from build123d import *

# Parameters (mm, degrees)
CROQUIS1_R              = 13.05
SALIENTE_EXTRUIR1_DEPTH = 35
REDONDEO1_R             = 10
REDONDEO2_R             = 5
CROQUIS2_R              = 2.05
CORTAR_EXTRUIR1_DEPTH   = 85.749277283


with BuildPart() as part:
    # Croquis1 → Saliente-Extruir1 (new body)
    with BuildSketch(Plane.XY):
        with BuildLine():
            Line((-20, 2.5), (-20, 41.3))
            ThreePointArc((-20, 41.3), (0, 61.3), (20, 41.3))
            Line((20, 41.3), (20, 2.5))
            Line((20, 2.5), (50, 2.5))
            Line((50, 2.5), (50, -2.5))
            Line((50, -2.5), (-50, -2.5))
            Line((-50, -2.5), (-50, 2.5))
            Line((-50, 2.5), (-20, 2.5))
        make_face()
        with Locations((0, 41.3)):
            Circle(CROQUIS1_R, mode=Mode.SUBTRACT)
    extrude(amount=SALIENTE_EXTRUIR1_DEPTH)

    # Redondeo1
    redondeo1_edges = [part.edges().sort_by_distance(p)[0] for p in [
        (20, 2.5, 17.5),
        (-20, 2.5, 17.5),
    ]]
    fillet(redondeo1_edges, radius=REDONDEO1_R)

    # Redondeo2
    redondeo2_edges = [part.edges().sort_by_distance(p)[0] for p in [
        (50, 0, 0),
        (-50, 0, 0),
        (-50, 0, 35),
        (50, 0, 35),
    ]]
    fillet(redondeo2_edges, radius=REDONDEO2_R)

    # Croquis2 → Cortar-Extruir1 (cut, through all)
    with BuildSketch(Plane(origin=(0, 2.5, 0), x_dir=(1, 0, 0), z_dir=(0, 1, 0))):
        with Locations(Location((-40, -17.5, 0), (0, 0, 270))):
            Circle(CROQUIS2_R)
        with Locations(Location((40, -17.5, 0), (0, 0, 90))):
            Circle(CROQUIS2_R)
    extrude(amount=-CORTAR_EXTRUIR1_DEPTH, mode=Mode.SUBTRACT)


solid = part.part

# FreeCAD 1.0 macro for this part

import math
import FreeCAD as App
import Part
import Sketcher
Q = App.Units.Quantity


def edges_at(feature, points):
    """Names of the edges that pass closest to the given points."""
    edges = feature.Shape.Edges
    near = lambda p: min(range(len(edges)), key=lambda i: edges[i].distToShape(Part.Vertex(*p))[0])
    return sorted({f"Edge{near(p) + 1}" for p in points})

doc = App.newDocument("Part")
body = doc.addObject("PartDesign::Body", "Body")

# Sketch on XY plane
sketch1 = doc.addObject("Sketcher::SketchObject", "Sketch")
body.addObject(sketch1)
sketch1.AttachmentSupport = (doc.XY_Plane, [""])
sketch1.MapMode = "FlatFace"
sketch1.addGeometry([
    Part.LineSegment(App.Vector(-20, 41, 0), App.Vector(-20, 2, 0)),  # 0
    Part.LineSegment(App.Vector(-20, 2, 0), App.Vector(-50, 2, 0)),  # 1
    Part.LineSegment(App.Vector(-50, 2, 0), App.Vector(-50, -2, 0)),  # 2
    Part.LineSegment(App.Vector(-50, -2, 0), App.Vector(50, -2, 0)),  # 3
    Part.LineSegment(App.Vector(50, -2, 0), App.Vector(50, 2, 0)),  # 4
    Part.LineSegment(App.Vector(50, 2, 0), App.Vector(20, 2, 0)),  # 5
    Part.LineSegment(App.Vector(20, 2, 0), App.Vector(20, 41, 0)),  # 6
    Part.ArcOfCircle(Part.Circle(App.Vector(0, 41, 0), App.Vector(0, 0, 1), 20), math.radians(0), math.radians(180)),  # 7
    Part.Circle(App.Vector(0, 41, 0), App.Vector(0, 0, 1), 13),  # 8
], False)
sketch1.addConstraint([
    Sketcher.Constraint("Coincident", 0, 2, 1, 1),
    Sketcher.Constraint("Coincident", 1, 2, 2, 1),
    Sketcher.Constraint("Coincident", 2, 2, 3, 1),
    Sketcher.Constraint("Coincident", 3, 2, 4, 1),
    Sketcher.Constraint("Coincident", 4, 2, 5, 1),
    Sketcher.Constraint("Coincident", 5, 2, 6, 1),
    Sketcher.Constraint("Tangent", 6, 2, 7, 1),
    Sketcher.Constraint("Tangent", 7, 2, 0, 1),
    Sketcher.Constraint("Vertical", 0),
    Sketcher.Constraint("Horizontal", 1),
    Sketcher.Constraint("Vertical", 2),
    Sketcher.Constraint("Horizontal", 3),
    Sketcher.Constraint("Vertical", 4),
    Sketcher.Constraint("Horizontal", 5),
    Sketcher.Constraint("Vertical", 6),
    Sketcher.Constraint("Coincident", 8, 3, 7, 3),
    Sketcher.Constraint("Symmetric", 1, 2, 3, 2, -1, 1),
    Sketcher.Constraint("Symmetric", 0, 2, 5, 2, -2),
    Sketcher.Constraint("Radius", 7, Q("20 mm")),
    Sketcher.Constraint("Diameter", 8, Q("26.1 mm")),
    Sketcher.Constraint("DistanceX", 1, 2, 1, 1, Q("30 mm")),
    Sketcher.Constraint("DistanceY", 2, 2, 2, 1, Q("5 mm")),
    Sketcher.Constraint("DistanceY", 0, 2, 0, 1, Q("38.8 mm")),
])
pad1 = doc.addObject("PartDesign::Pad", "Pad")
body.addObject(pad1)
pad1.Profile = sketch1
pad1.Length = 35
doc.recompute()

fillet = doc.addObject("PartDesign::Fillet", "Fillet")
body.addObject(fillet)
fillet.Base = (pad1, edges_at(pad1, [(20, 2.5, 17.5), (-20, 2.5, 17.5)]))
fillet.Radius = 10
doc.recompute()

fillet2 = doc.addObject("PartDesign::Fillet", "Fillet001")
body.addObject(fillet2)
fillet2.Base = (fillet, edges_at(fillet, [
    (50, 0, 0),
    (-50, 0, 0),
    (-50, 0, 35),
    (50, 0, 35),
]))
fillet2.Radius = 5

# Sketch on XZ plane
sketch2 = doc.addObject("Sketcher::SketchObject", "Sketch001")
body.addObject(sketch2)
sketch2.AttachmentSupport = (doc.XZ_Plane, [""])
sketch2.MapMode = "FlatFace"
sketch2.AttachmentOffset = App.Placement(App.Vector(0, 0, -2.5), App.Rotation())
sketch2.addGeometry([
    Part.Circle(App.Vector(-40, 17.5, 0), App.Vector(0, 0, 1), 2),
    Part.Circle(App.Vector(40, 17.5, 0), App.Vector(0, 0, 1), 2),
], False)
sketch2.addConstraint([
    Sketcher.Constraint("Equal", 0, 1),
    Sketcher.Constraint("Symmetric", 0, 3, 1, 3, -2),
    Sketcher.Constraint("Diameter", 0, Q("4.1 mm")),
    Sketcher.Constraint("DistanceX", 0, 3, -1, 1, Q("40 mm")),
    Sketcher.Constraint("DistanceY", -1, 1, 0, 3, Q("17.5 mm")),
])
pocket1 = doc.addObject("PartDesign::Pocket", "Pocket")
body.addObject(pocket1)
pocket1.Profile = sketch2
pocket1.Type = "ThroughAll"
pocket1.Reversed = True

doc.recompute()
